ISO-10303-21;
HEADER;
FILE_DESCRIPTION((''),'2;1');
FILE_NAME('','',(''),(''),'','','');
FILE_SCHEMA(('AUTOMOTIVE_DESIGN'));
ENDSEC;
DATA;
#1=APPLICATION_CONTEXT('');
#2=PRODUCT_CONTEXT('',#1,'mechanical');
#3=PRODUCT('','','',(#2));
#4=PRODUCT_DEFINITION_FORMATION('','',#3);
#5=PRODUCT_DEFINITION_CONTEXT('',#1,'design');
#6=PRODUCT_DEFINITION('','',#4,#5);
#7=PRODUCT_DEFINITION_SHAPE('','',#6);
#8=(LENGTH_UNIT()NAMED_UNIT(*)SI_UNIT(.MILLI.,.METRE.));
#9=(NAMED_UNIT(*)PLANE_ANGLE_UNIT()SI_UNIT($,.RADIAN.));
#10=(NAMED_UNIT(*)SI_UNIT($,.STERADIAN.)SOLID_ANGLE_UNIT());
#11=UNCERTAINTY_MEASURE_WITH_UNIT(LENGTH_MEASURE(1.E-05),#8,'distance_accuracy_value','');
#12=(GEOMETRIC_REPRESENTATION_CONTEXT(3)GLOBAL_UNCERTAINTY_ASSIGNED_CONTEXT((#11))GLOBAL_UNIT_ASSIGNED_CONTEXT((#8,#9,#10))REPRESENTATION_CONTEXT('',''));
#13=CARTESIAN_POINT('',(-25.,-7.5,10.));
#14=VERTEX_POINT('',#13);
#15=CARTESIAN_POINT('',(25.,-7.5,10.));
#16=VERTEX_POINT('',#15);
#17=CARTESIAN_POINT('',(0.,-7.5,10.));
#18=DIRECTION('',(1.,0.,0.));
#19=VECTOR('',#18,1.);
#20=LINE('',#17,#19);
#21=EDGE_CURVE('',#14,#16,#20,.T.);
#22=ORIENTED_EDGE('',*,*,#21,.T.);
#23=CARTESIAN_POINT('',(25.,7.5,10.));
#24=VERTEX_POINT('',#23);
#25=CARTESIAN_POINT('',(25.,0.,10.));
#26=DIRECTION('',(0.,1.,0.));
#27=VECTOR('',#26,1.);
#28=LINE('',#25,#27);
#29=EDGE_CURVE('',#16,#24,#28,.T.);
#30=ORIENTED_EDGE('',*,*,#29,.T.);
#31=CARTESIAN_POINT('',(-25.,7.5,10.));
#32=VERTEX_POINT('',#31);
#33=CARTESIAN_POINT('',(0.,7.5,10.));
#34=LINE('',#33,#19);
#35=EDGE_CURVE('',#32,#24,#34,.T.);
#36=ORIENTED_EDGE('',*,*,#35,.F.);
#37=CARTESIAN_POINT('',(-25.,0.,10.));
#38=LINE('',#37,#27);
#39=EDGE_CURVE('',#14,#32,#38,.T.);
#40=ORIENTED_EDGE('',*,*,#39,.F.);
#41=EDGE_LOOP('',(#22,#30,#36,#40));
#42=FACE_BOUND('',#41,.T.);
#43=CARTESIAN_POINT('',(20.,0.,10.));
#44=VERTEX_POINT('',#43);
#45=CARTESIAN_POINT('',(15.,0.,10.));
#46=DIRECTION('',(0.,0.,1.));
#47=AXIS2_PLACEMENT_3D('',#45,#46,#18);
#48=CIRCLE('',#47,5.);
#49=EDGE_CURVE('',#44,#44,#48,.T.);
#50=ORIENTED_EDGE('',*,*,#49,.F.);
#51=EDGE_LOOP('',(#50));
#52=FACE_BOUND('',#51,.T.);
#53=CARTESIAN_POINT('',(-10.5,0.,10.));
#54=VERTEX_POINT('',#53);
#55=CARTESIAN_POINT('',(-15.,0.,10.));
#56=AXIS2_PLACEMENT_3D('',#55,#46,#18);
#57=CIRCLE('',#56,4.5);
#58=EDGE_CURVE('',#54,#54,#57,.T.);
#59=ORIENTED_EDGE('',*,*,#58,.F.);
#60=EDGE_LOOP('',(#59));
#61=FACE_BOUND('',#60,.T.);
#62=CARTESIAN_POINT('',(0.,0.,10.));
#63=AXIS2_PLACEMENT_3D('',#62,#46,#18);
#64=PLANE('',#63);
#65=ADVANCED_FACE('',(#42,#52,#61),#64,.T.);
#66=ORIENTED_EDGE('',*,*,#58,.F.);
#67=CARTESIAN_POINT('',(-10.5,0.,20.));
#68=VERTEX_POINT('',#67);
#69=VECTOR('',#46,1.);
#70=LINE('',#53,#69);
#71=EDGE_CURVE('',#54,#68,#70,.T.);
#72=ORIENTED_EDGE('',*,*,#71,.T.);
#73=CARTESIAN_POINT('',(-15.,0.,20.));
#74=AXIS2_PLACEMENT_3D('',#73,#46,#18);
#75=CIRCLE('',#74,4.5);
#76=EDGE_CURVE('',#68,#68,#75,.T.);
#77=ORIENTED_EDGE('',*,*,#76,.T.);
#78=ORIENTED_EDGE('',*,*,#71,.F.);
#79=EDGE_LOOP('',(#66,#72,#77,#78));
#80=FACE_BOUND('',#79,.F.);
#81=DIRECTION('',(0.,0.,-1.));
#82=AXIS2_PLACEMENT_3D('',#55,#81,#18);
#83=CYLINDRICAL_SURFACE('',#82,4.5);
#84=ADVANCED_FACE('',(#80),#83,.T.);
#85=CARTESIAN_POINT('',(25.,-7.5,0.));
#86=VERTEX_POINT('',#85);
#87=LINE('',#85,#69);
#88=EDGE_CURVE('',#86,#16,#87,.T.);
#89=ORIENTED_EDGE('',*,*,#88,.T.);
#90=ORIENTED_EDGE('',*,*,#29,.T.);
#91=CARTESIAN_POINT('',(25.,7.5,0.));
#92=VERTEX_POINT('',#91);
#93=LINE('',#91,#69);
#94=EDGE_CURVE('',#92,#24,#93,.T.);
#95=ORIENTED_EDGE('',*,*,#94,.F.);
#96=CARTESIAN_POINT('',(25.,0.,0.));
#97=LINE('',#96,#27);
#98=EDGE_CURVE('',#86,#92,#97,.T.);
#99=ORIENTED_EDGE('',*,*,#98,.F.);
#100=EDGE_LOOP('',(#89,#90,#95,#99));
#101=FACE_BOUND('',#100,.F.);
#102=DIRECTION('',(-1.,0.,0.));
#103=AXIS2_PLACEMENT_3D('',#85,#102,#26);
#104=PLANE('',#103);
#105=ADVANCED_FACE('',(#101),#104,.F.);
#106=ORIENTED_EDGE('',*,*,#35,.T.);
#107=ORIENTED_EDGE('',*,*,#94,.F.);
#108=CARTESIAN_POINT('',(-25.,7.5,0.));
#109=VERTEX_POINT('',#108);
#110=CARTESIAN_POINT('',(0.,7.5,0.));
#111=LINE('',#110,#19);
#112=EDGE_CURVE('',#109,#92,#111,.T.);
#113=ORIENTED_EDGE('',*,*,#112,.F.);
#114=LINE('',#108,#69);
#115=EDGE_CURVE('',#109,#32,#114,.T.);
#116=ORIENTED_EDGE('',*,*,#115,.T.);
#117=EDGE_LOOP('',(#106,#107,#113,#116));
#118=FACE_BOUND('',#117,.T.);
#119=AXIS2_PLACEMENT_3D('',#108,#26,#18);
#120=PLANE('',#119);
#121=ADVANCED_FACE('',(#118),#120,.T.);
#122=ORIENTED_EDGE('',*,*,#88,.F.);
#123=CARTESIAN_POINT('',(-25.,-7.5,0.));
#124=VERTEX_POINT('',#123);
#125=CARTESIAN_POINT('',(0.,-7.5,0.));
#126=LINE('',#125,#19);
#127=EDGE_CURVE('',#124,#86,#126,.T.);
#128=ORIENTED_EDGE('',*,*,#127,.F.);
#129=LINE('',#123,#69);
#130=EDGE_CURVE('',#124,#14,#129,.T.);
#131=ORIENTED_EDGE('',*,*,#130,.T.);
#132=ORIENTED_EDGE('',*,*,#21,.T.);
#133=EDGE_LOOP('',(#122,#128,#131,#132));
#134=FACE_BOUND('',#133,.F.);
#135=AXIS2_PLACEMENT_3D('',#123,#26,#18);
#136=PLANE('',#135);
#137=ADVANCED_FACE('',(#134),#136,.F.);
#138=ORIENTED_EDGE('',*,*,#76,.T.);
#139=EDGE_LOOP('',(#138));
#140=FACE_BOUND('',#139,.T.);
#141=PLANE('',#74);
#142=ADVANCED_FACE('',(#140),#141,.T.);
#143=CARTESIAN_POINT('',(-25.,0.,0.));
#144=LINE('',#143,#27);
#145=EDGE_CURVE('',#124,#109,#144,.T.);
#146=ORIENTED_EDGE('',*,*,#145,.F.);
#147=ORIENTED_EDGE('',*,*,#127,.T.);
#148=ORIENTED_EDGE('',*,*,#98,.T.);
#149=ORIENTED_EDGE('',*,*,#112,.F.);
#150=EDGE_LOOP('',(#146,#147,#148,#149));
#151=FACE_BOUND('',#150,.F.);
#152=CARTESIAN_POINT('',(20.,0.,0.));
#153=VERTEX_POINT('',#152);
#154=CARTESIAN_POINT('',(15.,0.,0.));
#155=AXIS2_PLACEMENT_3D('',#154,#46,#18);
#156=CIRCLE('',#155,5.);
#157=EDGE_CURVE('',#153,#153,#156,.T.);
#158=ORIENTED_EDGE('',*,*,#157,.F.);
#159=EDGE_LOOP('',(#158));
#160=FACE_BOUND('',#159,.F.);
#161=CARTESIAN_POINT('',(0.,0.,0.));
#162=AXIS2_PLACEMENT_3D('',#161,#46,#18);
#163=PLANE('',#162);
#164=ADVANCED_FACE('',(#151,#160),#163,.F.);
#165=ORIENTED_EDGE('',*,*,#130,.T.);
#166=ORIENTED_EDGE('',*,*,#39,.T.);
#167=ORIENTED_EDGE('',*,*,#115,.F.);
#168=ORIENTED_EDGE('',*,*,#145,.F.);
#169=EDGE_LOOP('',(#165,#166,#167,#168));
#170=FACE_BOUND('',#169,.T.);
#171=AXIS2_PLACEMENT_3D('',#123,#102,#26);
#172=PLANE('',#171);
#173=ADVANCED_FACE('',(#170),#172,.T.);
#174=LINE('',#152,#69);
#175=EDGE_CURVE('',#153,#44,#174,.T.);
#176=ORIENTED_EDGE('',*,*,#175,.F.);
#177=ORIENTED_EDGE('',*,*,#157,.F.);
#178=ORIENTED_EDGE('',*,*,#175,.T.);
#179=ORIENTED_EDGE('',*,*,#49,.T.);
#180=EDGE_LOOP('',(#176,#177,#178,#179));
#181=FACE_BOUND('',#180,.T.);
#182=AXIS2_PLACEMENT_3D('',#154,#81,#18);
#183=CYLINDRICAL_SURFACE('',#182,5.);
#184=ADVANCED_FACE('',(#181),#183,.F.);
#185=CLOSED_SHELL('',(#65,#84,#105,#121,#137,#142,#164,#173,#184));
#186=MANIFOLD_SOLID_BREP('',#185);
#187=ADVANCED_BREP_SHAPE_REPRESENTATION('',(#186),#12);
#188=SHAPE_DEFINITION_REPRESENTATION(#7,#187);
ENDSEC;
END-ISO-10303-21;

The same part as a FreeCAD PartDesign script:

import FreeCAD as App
import Part
import Sketcher
Q = App.Units.Quantity

doc = App.newDocument("Part")
body = doc.addObject("PartDesign::Body", "Body")

sketch1 = body.newObject("Sketcher::SketchObject", "Sketch")
sketch1.AttachmentSupport = (doc.getObject("XY_Plane"), [""])
sketch1.MapMode = "FlatFace"
sketch1.addGeometry(Part.LineSegment(App.Vector(-25, 7.5, 0), App.Vector(-25, -7.5, 0)), False)
sketch1.addGeometry(Part.LineSegment(App.Vector(-25, -7.5, 0), App.Vector(25, -7.5, 0)), False)
sketch1.addGeometry(Part.LineSegment(App.Vector(25, -7.5, 0), App.Vector(25, 7.5, 0)), False)
sketch1.addGeometry(Part.LineSegment(App.Vector(25, 7.5, 0), App.Vector(-25, 7.5, 0)), False)
sketch1.addGeometry(Part.Circle(App.Vector(15, 0, 0), App.Vector(0, 0, 1), 5), False)
sketch1.addConstraint(Sketcher.Constraint("Coincident", 0, 2, 1, 1))
sketch1.addConstraint(Sketcher.Constraint("Coincident", 1, 2, 2, 1))
sketch1.addConstraint(Sketcher.Constraint("Coincident", 2, 2, 3, 1))
sketch1.addConstraint(Sketcher.Constraint("Coincident", 3, 2, 0, 1))
sketch1.addConstraint(Sketcher.Constraint("Vertical", 0))
sketch1.addConstraint(Sketcher.Constraint("Horizontal", 1))
sketch1.addConstraint(Sketcher.Constraint("Vertical", 2))
sketch1.addConstraint(Sketcher.Constraint("Horizontal", 3))
sketch1.addConstraint(Sketcher.Constraint("Symmetric", 0, 2, 2, 2, -1, 1))
sketch1.addConstraint(Sketcher.Constraint("PointOnObject", 4, 3, -1))
sketch1.addConstraint(Sketcher.Constraint("Diameter", 4, Q("10 mm")))
sketch1.addConstraint(Sketcher.Constraint("DistanceX", 1, 1, 1, 2, Q("50 mm")))
sketch1.addConstraint(Sketcher.Constraint("DistanceY", 0, 2, 0, 1, Q("15 mm")))
sketch1.addConstraint(Sketcher.Constraint("DistanceX", -1, 1, 4, 3, Q("15 mm")))
pad1 = body.newObject("PartDesign::Pad", "Pad")
pad1.Profile = sketch1
pad1.Length = 10

sketch2 = body.newObject("Sketcher::SketchObject", "Sketch001")
sketch2.AttachmentSupport = (doc.getObject("XY_Plane"), [""])
sketch2.MapMode = "FlatFace"
sketch2.AttachmentOffset = App.Placement(App.Vector(0, 0, 10), App.Rotation())
sketch2.addGeometry(Part.Circle(App.Vector(-15, 0, 0), App.Vector(0, 0, 1), 4.5), False)
sketch2.addConstraint(Sketcher.Constraint("PointOnObject", 0, 3, -1))
sketch2.addConstraint(Sketcher.Constraint("Diameter", 0, Q("9 mm")))
sketch2.addConstraint(Sketcher.Constraint("DistanceX", 0, 3, -1, 1, Q("15 mm")))
pad2 = body.newObject("PartDesign::Pad", "Pad001")
pad2.Profile = sketch2
pad2.Length = 10

doc.recompute()
